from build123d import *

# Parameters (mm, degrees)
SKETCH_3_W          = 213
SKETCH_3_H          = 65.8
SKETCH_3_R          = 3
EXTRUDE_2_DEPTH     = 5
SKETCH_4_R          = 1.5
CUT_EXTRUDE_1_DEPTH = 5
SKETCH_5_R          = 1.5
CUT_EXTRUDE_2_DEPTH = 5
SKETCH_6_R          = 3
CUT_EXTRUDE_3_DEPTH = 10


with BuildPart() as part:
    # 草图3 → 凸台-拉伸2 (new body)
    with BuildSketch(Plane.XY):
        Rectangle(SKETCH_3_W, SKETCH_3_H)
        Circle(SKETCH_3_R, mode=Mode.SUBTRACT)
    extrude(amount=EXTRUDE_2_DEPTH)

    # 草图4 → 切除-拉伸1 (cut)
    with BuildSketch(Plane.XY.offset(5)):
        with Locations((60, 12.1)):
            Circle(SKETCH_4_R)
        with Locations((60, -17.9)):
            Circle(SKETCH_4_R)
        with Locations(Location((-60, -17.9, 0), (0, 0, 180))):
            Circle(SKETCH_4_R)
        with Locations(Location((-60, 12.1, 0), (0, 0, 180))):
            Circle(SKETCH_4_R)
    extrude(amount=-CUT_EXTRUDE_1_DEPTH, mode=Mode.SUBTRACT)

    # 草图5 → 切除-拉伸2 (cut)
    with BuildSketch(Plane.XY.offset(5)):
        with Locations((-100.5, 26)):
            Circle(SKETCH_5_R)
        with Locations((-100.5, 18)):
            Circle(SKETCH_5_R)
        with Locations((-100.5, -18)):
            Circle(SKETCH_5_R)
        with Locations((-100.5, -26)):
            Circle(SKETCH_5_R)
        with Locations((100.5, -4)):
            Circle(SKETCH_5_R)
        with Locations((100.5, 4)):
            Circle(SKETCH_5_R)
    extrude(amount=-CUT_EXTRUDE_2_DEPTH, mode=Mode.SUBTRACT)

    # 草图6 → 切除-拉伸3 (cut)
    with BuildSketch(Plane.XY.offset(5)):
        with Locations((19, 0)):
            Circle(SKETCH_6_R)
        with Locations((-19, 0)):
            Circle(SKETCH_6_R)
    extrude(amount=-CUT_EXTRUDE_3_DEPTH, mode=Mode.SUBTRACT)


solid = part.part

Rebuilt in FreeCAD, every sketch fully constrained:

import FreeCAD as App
import Part
import Sketcher

doc = App.newDocument("Part")
body = doc.addObject("PartDesign::Body", "Body")

sketch1 = body.newObject("Sketcher::SketchObject", "Sketch")
sketch1.AttachmentSupport = (doc.getObject("XY_Plane"), [""])
sketch1.MapMode = "FlatFace"
sketch1.addGeometry(Part.LineSegment(App.Vector(-106.5, 32.9, 0), App.Vector(-106.5, -32.9, 0)), False)
sketch1.addGeometry(Part.LineSegment(App.Vector(-106.5, -32.9, 0), App.Vector(106.5, -32.9, 0)), False)
sketch1.addGeometry(Part.LineSegment(App.Vector(106.5, -32.9, 0), App.Vector(106.5, 32.9, 0)), False)
sketch1.addGeometry(Part.LineSegment(App.Vector(106.5, 32.9, 0), App.Vector(-106.5, 32.9, 0)), False)
sketch1.addGeometry(Part.Circle(App.Vector(0, 0, 0), App.Vector(0, 0, 1), 3), False)
sketch1.addConstraint(Sketcher.Constraint("Coincident", 0, 2, 1, 1))
sketch1.addConstraint(Sketcher.Constraint("Coincident", 1, 2, 2, 1))
sketch1.addConstraint(Sketcher.Constraint("Coincident", 2, 2, 3, 1))
sketch1.addConstraint(Sketcher.Constraint("Coincident", 3, 2, 0, 1))
sketch1.addConstraint(Sketcher.Constraint("Vertical", 0))
sketch1.addConstraint(Sketcher.Constraint("Horizontal", 1))
sketch1.addConstraint(Sketcher.Constraint("Vertical", 2))
sketch1.addConstraint(Sketcher.Constraint("Horizontal", 3))
sketch1.addConstraint(Sketcher.Constraint("Coincident", 4, 3, -1, 1))
sketch1.addConstraint(Sketcher.Constraint("Symmetric", 0, 2, 2, 2, -1, 1))
sketch1.addConstraint(Sketcher.Constraint("Diameter", 4, 6.0))
sketch1.addConstraint(Sketcher.Constraint("DistanceX", 1, 1, 1, 2, 213.0))
sketch1.addConstraint(Sketcher.Constraint("DistanceY", 0, 2, 0, 1, 65.8))
pad1 = body.newObject("PartDesign::Pad", "Pad")
pad1.Profile = sketch1
pad1.Length = 5

sketch2 = body.newObject("Sketcher::SketchObject", "Sketch001")
sketch2.AttachmentSupport = (doc.getObject("XY_Plane"), [""])
sketch2.MapMode = "FlatFace"
sketch2.AttachmentOffset = App.Placement(App.Vector(0, 0, 5), App.Rotation())
sketch2.addGeometry(Part.Circle(App.Vector(60, 12.1, 0), App.Vector(0, 0, 1), 1.5), False)
sketch2.addGeometry(Part.Circle(App.Vector(60, -17.9, 0), App.Vector(0, 0, 1), 1.5), False)
sketch2.addGeometry(Part.Circle(App.Vector(-60, -17.9, 0), App.Vector(0, 0, 1), 1.5), False)
sketch2.addGeometry(Part.Circle(App.Vector(-60, 12.1, 0), App.Vector(0, 0, 1), 1.5), False)
sketch2.addConstraint(Sketcher.Constraint("Equal", 0, 1))
sketch2.addConstraint(Sketcher.Constraint("Equal", 1, 2))
sketch2.addConstraint(Sketcher.Constraint("Equal", 2, 3))
sketch2.addConstraint(Sketcher.Constraint("Symmetric", 1, 3, 2, 3, -2))
sketch2.addConstraint(Sketcher.Constraint("Symmetric", 0, 3, 3, 3, -2))
sketch2.addConstraint(Sketcher.Constraint("Vertical", 0, 3, 1, 3))
sketch2.addConstraint(Sketcher.Constraint("Diameter", 0, 3.0))
sketch2.addConstraint(Sketcher.Constraint("DistanceX", -1, 1, 0, 3, 60.0))
sketch2.addConstraint(Sketcher.Constraint("DistanceY", 1, 3, 0, 3, 30.0))
sketch2.addConstraint(Sketcher.Constraint("DistanceY", -1, 1, 0, 3, 12.1))
pocket1 = body.newObject("PartDesign::Pocket", "Pocket")
pocket1.Profile = sketch2
pocket1.Length = 5

sketch3 = body.newObject("Sketcher::SketchObject", "Sketch002")
sketch3.AttachmentSupport = (doc.getObject("XY_Plane"), [""])
sketch3.MapMode = "FlatFace"
sketch3.AttachmentOffset = App.Placement(App.Vector(0, 0, 5), App.Rotation())
sketch3.addGeometry(Part.Circle(App.Vector(-100.5, 26, 0), App.Vector(0, 0, 1), 1.5), False)
sketch3.addGeometry(Part.Circle(App.Vector(-100.5, 18, 0), App.Vector(0, 0, 1), 1.5), False)
sketch3.addGeometry(Part.Circle(App.Vector(-100.5, -18, 0), App.Vector(0, 0, 1), 1.5), False)
sketch3.addGeometry(Part.Circle(App.Vector(-100.5, -26, 0), App.Vector(0, 0, 1), 1.5), False)
sketch3.addGeometry(Part.Circle(App.Vector(100.5, -4, 0), App.Vector(0, 0, 1), 1.5), False)
sketch3.addGeometry(Part.Circle(App.Vector(100.5, 4, 0), App.Vector(0, 0, 1), 1.5), False)
sketch3.addConstraint(Sketcher.Constraint("Equal", 0, 1))
sketch3.addConstraint(Sketcher.Constraint("Equal", 1, 2))
sketch3.addConstraint(Sketcher.Constraint("Equal", 2, 3))
sketch3.addConstraint(Sketcher.Constraint("Equal", 3, 4))
sketch3.addConstraint(Sketcher.Constraint("Equal", 4, 5))
sketch3.addConstraint(Sketcher.Constraint("Symmetric", 1, 3, 2, 3, -1))
sketch3.addConstraint(Sketcher.Constraint("Symmetric", 0, 3, 3, 3, -1))
sketch3.addConstraint(Sketcher.Constraint("Symmetric", 4, 3, 5, 3, -1))
sketch3.addConstraint(Sketcher.Constraint("Vertical", 0, 3, 1, 3))
sketch3.addConstraint(Sketcher.Constraint("Diameter", 0, 3.0))
sketch3.addConstraint(Sketcher.Constraint("DistanceY", -1, 1, 0, 3, 26.0))
sketch3.addConstraint(Sketcher.Constraint("DistanceY", -1, 1, 1, 3, 18.0))
sketch3.addConstraint(Sketcher.Constraint("DistanceY", 4, 3, -1, 1, 4.0))
sketch3.addConstraint(Sketcher.Constraint("DistanceX", 2, 3, 4, 3, 201.0))
sketch3.addConstraint(Sketcher.Constraint("DistanceX", 0, 3, -1, 1, 100.5))
pocket2 = body.newObject("PartDesign::Pocket", "Pocket001")
pocket2.Profile = sketch3
pocket2.Length = 5

sketch4 = body.newObject("Sketcher::SketchObject", "Sketch003")
sketch4.AttachmentSupport = (doc.getObject("XY_Plane"), [""])
sketch4.MapMode = "FlatFace"
sketch4.AttachmentOffset = App.Placement(App.Vector(0, 0, 5), App.Rotation())
sketch4.addGeometry(Part.Circle(App.Vector(19, 0, 0), App.Vector(0, 0, 1), 3), False)
sketch4.addGeometry(Part.Circle(App.Vector(-19, 0, 0), App.Vector(0, 0, 1), 3), False)
sketch4.addConstraint(Sketcher.Constraint("Equal", 0, 1))
sketch4.addConstraint(Sketcher.Constraint("Symmetric", 0, 3, 1, 3, -1, 1))
sketch4.addConstraint(Sketcher.Constraint("PointOnObject", 0, 3, -1))
sketch4.addConstraint(Sketcher.Constraint("Diameter", 0, 6.0))
sketch4.addConstraint(Sketcher.Constraint("DistanceX", -1, 1, 0, 3, 19.0))
pocket3 = body.newObject("PartDesign::Pocket", "Pocket002")
pocket3.Profile = sketch4
pocket3.Length = 10

doc.recompute()
